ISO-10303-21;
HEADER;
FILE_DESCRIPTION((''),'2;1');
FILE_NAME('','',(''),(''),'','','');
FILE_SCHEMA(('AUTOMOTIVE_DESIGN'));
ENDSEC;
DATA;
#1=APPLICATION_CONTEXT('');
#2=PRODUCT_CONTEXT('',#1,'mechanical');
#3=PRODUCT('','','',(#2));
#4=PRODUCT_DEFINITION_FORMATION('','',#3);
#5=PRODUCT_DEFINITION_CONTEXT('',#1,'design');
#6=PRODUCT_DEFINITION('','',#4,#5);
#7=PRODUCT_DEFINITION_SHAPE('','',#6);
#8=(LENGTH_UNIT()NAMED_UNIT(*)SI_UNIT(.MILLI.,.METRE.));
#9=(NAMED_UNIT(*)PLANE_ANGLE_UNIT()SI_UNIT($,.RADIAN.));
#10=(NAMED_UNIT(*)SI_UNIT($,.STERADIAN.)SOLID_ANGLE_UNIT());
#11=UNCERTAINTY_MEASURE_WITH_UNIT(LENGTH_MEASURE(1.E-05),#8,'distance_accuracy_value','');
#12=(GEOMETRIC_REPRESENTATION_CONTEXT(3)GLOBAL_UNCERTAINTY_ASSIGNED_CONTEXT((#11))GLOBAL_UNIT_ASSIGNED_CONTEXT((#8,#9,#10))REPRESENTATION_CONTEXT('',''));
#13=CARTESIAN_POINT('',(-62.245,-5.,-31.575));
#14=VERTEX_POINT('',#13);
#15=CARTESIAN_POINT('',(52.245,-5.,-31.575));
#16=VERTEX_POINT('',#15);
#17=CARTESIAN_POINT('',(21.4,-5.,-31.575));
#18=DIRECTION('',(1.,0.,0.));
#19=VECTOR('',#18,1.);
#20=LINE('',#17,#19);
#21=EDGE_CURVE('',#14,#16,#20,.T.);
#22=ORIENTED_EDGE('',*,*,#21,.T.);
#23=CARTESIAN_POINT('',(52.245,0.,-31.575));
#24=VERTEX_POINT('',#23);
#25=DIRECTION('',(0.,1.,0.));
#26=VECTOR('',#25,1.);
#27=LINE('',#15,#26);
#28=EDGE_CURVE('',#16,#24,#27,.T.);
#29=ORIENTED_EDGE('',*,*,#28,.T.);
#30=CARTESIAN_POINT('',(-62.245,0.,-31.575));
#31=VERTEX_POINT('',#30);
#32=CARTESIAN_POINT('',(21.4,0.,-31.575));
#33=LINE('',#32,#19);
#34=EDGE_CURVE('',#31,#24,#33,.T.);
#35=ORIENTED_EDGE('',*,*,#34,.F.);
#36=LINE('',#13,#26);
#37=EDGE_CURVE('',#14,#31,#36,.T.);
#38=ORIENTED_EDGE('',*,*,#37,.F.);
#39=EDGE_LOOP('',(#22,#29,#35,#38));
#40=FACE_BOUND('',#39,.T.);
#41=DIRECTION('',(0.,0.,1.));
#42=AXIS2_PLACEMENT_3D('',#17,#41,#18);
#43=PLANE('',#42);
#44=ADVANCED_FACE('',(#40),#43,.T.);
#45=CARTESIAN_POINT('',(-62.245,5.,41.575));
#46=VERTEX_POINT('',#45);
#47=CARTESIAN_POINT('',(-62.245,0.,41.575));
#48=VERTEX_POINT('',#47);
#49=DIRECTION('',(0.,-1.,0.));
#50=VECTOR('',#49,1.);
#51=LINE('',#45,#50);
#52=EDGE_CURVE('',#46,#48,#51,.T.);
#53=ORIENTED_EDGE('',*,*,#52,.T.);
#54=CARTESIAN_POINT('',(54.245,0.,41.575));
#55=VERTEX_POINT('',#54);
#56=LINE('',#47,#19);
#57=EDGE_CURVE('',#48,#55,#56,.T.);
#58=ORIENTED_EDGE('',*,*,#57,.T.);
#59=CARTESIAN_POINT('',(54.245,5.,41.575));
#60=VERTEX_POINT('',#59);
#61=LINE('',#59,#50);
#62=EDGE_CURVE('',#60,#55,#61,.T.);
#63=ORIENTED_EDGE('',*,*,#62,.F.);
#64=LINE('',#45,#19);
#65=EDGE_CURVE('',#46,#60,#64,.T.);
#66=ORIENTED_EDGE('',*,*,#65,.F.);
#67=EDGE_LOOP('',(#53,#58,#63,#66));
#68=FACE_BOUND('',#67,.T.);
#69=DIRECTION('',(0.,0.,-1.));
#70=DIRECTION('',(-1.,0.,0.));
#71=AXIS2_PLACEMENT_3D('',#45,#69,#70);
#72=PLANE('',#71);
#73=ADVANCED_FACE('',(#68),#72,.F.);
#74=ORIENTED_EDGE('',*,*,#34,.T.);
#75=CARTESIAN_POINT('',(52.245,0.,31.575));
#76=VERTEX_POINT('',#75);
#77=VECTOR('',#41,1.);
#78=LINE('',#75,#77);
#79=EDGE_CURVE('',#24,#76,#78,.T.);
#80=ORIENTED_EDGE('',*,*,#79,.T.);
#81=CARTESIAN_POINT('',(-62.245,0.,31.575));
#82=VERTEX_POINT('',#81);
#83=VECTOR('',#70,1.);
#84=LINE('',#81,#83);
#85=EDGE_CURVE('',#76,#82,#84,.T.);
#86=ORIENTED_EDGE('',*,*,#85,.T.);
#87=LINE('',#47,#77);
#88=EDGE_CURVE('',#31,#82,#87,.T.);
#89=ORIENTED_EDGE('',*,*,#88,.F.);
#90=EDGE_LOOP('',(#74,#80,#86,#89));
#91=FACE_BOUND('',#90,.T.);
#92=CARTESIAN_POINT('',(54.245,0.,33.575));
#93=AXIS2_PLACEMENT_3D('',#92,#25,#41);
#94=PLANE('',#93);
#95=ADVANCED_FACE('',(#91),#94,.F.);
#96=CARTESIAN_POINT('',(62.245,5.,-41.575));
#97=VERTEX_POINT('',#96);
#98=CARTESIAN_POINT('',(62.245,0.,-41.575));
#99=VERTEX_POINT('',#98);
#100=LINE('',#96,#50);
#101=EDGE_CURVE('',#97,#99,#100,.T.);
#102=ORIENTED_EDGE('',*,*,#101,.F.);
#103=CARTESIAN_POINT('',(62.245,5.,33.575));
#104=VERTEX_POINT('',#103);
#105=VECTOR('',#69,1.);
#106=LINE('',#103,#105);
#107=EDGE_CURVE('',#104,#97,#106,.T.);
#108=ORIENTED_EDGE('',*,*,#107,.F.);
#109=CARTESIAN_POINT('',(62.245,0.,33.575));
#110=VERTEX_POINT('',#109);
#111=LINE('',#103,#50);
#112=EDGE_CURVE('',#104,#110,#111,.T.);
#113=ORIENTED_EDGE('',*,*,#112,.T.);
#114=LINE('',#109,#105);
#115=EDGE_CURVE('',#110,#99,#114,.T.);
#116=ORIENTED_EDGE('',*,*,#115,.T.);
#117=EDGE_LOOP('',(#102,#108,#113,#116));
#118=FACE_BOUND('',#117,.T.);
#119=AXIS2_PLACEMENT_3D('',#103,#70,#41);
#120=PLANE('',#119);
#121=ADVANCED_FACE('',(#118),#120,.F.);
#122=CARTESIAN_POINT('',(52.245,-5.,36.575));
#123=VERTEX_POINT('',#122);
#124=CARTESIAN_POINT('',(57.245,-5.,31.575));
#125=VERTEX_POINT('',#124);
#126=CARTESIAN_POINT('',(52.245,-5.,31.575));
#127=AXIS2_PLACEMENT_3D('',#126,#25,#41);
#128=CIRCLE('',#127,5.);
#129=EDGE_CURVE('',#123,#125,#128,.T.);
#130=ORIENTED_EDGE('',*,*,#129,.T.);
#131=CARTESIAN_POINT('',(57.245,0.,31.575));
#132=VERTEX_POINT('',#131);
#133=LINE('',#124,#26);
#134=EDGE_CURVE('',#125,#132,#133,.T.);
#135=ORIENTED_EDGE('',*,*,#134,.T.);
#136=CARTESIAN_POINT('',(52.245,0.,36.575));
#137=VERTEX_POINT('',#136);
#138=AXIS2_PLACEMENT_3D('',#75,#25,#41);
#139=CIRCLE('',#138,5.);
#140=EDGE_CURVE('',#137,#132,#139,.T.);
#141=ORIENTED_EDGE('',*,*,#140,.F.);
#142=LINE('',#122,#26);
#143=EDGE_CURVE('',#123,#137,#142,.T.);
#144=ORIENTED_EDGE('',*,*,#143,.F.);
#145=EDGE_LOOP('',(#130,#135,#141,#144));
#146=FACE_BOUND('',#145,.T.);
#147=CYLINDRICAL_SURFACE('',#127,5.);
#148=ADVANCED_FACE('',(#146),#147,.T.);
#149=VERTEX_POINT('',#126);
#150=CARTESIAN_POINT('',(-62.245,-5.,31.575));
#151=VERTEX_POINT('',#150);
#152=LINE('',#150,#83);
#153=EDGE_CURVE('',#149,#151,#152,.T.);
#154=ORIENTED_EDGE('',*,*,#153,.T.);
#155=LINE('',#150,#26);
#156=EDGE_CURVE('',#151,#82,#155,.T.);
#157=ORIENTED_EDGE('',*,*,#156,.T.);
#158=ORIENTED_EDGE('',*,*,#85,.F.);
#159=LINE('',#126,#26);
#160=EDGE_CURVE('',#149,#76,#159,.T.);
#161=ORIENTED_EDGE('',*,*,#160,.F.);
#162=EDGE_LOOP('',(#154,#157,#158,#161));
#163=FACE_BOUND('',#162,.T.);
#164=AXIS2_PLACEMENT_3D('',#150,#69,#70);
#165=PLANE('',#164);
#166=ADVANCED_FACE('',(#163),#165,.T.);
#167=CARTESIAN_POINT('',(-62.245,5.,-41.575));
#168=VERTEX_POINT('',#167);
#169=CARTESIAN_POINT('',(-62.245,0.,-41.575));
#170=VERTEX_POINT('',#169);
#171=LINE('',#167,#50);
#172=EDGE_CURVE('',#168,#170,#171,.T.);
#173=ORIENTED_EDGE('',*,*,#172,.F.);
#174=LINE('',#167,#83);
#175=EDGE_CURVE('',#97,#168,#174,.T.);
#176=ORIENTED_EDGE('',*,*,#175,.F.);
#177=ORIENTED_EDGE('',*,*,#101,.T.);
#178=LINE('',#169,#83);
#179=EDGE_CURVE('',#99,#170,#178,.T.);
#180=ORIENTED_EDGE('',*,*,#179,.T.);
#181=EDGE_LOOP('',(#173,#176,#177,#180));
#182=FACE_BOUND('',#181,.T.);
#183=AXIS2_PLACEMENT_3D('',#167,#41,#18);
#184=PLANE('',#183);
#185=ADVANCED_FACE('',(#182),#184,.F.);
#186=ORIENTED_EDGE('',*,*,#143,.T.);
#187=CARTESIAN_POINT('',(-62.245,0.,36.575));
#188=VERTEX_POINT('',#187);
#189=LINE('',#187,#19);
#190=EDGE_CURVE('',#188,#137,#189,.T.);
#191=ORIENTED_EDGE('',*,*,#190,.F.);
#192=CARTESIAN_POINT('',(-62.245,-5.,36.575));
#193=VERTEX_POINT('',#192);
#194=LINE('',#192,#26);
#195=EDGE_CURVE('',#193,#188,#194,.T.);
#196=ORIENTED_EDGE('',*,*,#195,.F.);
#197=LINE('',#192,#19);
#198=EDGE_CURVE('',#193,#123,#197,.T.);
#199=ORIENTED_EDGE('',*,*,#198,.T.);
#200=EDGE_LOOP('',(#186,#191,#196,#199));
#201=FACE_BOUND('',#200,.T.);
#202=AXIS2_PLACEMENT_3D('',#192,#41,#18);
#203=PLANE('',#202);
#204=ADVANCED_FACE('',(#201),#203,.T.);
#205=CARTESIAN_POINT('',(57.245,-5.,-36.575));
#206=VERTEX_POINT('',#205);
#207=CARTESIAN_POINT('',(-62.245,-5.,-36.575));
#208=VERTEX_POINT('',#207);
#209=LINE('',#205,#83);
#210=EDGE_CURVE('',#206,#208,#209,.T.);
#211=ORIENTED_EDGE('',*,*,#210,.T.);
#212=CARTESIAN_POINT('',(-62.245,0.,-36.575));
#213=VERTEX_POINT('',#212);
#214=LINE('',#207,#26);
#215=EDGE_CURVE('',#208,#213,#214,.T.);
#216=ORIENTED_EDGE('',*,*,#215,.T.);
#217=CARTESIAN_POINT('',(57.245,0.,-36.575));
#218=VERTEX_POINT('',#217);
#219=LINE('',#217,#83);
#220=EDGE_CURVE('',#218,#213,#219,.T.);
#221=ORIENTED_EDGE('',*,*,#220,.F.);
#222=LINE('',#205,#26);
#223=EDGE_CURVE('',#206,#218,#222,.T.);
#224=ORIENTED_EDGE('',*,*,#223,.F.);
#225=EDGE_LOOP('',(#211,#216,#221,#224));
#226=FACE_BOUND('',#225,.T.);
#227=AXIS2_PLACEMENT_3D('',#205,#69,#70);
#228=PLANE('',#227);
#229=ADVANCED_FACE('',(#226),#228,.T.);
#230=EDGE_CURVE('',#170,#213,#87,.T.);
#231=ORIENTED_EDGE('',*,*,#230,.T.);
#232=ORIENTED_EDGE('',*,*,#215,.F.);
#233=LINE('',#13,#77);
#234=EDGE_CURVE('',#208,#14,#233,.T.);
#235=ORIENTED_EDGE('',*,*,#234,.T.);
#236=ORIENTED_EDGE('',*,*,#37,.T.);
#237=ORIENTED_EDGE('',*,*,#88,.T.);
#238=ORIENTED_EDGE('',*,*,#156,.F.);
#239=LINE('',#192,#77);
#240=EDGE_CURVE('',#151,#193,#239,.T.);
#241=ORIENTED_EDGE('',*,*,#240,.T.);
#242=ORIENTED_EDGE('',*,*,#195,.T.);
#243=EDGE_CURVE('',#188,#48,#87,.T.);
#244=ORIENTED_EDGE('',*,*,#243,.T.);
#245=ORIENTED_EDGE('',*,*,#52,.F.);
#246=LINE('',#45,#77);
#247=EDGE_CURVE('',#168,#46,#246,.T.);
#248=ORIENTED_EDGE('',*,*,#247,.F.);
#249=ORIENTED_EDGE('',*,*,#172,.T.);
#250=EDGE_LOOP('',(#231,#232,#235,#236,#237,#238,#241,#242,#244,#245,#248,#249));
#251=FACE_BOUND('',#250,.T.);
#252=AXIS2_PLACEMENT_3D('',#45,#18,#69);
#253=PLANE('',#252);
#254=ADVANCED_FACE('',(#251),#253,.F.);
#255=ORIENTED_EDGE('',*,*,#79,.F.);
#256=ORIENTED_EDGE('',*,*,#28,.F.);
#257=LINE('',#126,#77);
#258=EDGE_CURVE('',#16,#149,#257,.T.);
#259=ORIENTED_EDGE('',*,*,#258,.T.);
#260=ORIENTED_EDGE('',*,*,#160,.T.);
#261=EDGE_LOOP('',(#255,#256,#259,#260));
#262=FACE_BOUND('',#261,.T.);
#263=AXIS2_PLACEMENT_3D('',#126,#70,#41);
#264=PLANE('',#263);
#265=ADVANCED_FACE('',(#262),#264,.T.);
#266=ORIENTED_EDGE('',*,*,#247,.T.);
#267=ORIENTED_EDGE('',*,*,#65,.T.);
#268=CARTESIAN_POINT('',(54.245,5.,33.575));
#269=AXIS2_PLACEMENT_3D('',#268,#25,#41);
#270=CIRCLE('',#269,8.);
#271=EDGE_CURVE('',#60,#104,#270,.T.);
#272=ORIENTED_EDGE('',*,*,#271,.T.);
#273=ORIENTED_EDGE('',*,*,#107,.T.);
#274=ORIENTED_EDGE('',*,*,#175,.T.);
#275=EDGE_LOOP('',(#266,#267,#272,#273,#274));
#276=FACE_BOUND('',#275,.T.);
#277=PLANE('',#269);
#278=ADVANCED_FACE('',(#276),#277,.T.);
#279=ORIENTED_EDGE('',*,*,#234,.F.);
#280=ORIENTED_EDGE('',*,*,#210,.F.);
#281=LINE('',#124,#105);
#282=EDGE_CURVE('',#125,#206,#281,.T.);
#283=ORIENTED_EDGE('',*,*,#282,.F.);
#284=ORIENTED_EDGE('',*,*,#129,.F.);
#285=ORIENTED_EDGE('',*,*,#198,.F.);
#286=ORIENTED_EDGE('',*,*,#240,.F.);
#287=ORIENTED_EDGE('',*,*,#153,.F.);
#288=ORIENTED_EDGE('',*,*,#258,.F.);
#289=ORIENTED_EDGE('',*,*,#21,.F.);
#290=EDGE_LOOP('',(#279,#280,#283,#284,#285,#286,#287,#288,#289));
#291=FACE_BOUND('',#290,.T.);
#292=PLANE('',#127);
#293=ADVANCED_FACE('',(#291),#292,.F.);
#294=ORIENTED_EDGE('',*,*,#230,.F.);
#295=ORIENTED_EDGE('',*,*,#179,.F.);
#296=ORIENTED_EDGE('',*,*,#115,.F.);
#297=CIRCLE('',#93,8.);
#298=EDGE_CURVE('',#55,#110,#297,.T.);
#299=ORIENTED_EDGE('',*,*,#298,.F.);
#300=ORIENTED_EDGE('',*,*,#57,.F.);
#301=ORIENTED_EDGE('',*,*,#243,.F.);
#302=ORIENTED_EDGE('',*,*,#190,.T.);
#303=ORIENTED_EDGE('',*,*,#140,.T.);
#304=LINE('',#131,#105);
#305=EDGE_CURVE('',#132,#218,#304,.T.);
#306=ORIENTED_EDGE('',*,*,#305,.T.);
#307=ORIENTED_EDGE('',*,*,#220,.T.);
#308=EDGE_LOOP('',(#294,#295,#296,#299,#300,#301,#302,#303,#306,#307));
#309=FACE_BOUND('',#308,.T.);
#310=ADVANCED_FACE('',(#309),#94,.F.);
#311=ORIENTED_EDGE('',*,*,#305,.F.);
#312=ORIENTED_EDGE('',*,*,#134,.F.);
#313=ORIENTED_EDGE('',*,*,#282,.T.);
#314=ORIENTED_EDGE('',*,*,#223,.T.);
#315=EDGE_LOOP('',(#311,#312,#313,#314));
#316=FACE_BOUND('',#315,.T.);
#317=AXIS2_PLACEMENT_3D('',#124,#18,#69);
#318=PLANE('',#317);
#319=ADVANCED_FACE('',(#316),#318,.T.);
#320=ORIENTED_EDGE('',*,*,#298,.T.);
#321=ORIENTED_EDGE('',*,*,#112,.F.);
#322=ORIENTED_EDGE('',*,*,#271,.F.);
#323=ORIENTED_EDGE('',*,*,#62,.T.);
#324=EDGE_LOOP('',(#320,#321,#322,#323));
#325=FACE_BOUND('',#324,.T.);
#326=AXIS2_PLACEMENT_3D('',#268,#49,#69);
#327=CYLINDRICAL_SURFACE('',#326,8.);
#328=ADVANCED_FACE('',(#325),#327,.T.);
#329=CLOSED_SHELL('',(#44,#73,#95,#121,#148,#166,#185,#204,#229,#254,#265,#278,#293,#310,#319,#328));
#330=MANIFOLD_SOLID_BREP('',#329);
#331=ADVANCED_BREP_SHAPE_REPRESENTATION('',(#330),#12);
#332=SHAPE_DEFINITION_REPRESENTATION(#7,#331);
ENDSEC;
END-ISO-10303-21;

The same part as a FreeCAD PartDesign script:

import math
import FreeCAD as App
import Part
import Sketcher

V = App.Vector

doc = App.newDocument("Part")
body = doc.addObject("PartDesign::Body", "Body")

sketch1 = doc.addObject("Sketcher::SketchObject", "Sketch")
body.addObject(sketch1)
sketch1.AttachmentSupport = (doc.XZ_Plane, [""])
sketch1.MapMode = "FlatFace"
sketch1.addGeometry([
    Part.LineSegment(V(-62, 42, 0), V(54, 42, 0)),
    Part.ArcOfCircle(Part.Circle(V(54, 34, 0), V(0, 0, 1), 8), math.radians(0), math.radians(90)),
    Part.LineSegment(V(62, 34, 0), V(62, -42, 0)),
    Part.LineSegment(V(62, -42, 0), V(-62, -42, 0)),
    Part.LineSegment(V(-62, -42, 0), V(-62, 42, 0)),
], False)
sketch1.addConstraint([
    Sketcher.Constraint("Tangent", 0, 2, 1, 2),
    Sketcher.Constraint("Tangent", 1, 1, 2, 1),
    Sketcher.Constraint("Coincident", 2, 2, 3, 1),
    Sketcher.Constraint("Coincident", 3, 2, 4, 1),
    Sketcher.Constraint("Coincident", 4, 2, 0, 1),
    Sketcher.Constraint("Horizontal", 0),
    Sketcher.Constraint("Vertical", 2),
    Sketcher.Constraint("Horizontal", 3),
    Sketcher.Constraint("Vertical", 4),
    Sketcher.Constraint("Symmetric", 2, 2, 4, 2, -1, 1),
    Sketcher.Constraint("Radius", 1, 8.0),
    Sketcher.Constraint("DistanceX", 0, 1, 0, 2, 116.49),
    Sketcher.Constraint("DistanceY", 2, 2, 2, 1, 75.15),
])
pad1 = doc.addObject("PartDesign::Pad", "Pad")
body.addObject(pad1)
pad1.Profile = sketch1
pad1.Length = 5
pad1.Reversed = True

sketch2 = doc.addObject("Sketcher::SketchObject", "Sketch001")
body.addObject(sketch2)
sketch2.AttachmentSupport = (doc.XZ_Plane, [""])
sketch2.MapMode = "FlatFace"
sketch2.addGeometry([
    Part.LineSegment(V(52, -32, 0), V(52, 32, 0)),
    Part.LineSegment(V(52, 32, 0), V(-62, 32, 0)),
    Part.LineSegment(V(-62, 32, 0), V(-62, 37, 0)),
    Part.LineSegment(V(-62, 37, 0), V(52, 37, 0)),
    Part.ArcOfCircle(Part.Circle(V(52, 32, 0), V(0, 0, 1), 5), math.radians(0), math.radians(90)),
    Part.LineSegment(V(57, 32, 0), V(57, -37, 0)),
    Part.LineSegment(V(57, -37, 0), V(-62, -37, 0)),
    Part.LineSegment(V(-62, -37, 0), V(-62, -32, 0)),
    Part.LineSegment(V(-62, -32, 0), V(52, -32, 0)),
], False)
sketch2.addConstraint([
    Sketcher.Constraint("Coincident", 0, 2, 1, 1),
    Sketcher.Constraint("Coincident", 1, 2, 2, 1),
    Sketcher.Constraint("Coincident", 2, 2, 3, 1),
    Sketcher.Constraint("Tangent", 3, 2, 4, 2),
    Sketcher.Constraint("Tangent", 4, 1, 5, 1),
    Sketcher.Constraint("Coincident", 5, 2, 6, 1),
    Sketcher.Constraint("Coincident", 6, 2, 7, 1),
    Sketcher.Constraint("Coincident", 7, 2, 8, 1),
    Sketcher.Constraint("Coincident", 8, 2, 0, 1),
    Sketcher.Constraint("Vertical", 0),
    Sketcher.Constraint("Horizontal", 1),
    Sketcher.Constraint("Vertical", 2),
    Sketcher.Constraint("Horizontal", 3),
    Sketcher.Constraint("Vertical", 5),
    Sketcher.Constraint("Horizontal", 6),
    Sketcher.Constraint("Vertical", 7),
    Sketcher.Constraint("Horizontal", 8),
    Sketcher.Constraint("Coincident", 0, 2, 4, 3),
    Sketcher.Constraint("Symmetric", 2, 2, 6, 2, -1),
    Sketcher.Constraint("Equal", 2, 7),
    Sketcher.Constraint("Radius", 4, 5.0),
    Sketcher.Constraint("DistanceX", 1, 2, 1, 1, 114.49),
    Sketcher.Constraint("DistanceY", 0, 1, 0, 2, 63.15),
    Sketcher.Constraint("DistanceX", -1, 1, 4, 3, 52.245),
])
pad2 = doc.addObject("PartDesign::Pad", "Pad001")
body.addObject(pad2)
pad2.Profile = sketch2
pad2.Length = 5

doc.recompute()
